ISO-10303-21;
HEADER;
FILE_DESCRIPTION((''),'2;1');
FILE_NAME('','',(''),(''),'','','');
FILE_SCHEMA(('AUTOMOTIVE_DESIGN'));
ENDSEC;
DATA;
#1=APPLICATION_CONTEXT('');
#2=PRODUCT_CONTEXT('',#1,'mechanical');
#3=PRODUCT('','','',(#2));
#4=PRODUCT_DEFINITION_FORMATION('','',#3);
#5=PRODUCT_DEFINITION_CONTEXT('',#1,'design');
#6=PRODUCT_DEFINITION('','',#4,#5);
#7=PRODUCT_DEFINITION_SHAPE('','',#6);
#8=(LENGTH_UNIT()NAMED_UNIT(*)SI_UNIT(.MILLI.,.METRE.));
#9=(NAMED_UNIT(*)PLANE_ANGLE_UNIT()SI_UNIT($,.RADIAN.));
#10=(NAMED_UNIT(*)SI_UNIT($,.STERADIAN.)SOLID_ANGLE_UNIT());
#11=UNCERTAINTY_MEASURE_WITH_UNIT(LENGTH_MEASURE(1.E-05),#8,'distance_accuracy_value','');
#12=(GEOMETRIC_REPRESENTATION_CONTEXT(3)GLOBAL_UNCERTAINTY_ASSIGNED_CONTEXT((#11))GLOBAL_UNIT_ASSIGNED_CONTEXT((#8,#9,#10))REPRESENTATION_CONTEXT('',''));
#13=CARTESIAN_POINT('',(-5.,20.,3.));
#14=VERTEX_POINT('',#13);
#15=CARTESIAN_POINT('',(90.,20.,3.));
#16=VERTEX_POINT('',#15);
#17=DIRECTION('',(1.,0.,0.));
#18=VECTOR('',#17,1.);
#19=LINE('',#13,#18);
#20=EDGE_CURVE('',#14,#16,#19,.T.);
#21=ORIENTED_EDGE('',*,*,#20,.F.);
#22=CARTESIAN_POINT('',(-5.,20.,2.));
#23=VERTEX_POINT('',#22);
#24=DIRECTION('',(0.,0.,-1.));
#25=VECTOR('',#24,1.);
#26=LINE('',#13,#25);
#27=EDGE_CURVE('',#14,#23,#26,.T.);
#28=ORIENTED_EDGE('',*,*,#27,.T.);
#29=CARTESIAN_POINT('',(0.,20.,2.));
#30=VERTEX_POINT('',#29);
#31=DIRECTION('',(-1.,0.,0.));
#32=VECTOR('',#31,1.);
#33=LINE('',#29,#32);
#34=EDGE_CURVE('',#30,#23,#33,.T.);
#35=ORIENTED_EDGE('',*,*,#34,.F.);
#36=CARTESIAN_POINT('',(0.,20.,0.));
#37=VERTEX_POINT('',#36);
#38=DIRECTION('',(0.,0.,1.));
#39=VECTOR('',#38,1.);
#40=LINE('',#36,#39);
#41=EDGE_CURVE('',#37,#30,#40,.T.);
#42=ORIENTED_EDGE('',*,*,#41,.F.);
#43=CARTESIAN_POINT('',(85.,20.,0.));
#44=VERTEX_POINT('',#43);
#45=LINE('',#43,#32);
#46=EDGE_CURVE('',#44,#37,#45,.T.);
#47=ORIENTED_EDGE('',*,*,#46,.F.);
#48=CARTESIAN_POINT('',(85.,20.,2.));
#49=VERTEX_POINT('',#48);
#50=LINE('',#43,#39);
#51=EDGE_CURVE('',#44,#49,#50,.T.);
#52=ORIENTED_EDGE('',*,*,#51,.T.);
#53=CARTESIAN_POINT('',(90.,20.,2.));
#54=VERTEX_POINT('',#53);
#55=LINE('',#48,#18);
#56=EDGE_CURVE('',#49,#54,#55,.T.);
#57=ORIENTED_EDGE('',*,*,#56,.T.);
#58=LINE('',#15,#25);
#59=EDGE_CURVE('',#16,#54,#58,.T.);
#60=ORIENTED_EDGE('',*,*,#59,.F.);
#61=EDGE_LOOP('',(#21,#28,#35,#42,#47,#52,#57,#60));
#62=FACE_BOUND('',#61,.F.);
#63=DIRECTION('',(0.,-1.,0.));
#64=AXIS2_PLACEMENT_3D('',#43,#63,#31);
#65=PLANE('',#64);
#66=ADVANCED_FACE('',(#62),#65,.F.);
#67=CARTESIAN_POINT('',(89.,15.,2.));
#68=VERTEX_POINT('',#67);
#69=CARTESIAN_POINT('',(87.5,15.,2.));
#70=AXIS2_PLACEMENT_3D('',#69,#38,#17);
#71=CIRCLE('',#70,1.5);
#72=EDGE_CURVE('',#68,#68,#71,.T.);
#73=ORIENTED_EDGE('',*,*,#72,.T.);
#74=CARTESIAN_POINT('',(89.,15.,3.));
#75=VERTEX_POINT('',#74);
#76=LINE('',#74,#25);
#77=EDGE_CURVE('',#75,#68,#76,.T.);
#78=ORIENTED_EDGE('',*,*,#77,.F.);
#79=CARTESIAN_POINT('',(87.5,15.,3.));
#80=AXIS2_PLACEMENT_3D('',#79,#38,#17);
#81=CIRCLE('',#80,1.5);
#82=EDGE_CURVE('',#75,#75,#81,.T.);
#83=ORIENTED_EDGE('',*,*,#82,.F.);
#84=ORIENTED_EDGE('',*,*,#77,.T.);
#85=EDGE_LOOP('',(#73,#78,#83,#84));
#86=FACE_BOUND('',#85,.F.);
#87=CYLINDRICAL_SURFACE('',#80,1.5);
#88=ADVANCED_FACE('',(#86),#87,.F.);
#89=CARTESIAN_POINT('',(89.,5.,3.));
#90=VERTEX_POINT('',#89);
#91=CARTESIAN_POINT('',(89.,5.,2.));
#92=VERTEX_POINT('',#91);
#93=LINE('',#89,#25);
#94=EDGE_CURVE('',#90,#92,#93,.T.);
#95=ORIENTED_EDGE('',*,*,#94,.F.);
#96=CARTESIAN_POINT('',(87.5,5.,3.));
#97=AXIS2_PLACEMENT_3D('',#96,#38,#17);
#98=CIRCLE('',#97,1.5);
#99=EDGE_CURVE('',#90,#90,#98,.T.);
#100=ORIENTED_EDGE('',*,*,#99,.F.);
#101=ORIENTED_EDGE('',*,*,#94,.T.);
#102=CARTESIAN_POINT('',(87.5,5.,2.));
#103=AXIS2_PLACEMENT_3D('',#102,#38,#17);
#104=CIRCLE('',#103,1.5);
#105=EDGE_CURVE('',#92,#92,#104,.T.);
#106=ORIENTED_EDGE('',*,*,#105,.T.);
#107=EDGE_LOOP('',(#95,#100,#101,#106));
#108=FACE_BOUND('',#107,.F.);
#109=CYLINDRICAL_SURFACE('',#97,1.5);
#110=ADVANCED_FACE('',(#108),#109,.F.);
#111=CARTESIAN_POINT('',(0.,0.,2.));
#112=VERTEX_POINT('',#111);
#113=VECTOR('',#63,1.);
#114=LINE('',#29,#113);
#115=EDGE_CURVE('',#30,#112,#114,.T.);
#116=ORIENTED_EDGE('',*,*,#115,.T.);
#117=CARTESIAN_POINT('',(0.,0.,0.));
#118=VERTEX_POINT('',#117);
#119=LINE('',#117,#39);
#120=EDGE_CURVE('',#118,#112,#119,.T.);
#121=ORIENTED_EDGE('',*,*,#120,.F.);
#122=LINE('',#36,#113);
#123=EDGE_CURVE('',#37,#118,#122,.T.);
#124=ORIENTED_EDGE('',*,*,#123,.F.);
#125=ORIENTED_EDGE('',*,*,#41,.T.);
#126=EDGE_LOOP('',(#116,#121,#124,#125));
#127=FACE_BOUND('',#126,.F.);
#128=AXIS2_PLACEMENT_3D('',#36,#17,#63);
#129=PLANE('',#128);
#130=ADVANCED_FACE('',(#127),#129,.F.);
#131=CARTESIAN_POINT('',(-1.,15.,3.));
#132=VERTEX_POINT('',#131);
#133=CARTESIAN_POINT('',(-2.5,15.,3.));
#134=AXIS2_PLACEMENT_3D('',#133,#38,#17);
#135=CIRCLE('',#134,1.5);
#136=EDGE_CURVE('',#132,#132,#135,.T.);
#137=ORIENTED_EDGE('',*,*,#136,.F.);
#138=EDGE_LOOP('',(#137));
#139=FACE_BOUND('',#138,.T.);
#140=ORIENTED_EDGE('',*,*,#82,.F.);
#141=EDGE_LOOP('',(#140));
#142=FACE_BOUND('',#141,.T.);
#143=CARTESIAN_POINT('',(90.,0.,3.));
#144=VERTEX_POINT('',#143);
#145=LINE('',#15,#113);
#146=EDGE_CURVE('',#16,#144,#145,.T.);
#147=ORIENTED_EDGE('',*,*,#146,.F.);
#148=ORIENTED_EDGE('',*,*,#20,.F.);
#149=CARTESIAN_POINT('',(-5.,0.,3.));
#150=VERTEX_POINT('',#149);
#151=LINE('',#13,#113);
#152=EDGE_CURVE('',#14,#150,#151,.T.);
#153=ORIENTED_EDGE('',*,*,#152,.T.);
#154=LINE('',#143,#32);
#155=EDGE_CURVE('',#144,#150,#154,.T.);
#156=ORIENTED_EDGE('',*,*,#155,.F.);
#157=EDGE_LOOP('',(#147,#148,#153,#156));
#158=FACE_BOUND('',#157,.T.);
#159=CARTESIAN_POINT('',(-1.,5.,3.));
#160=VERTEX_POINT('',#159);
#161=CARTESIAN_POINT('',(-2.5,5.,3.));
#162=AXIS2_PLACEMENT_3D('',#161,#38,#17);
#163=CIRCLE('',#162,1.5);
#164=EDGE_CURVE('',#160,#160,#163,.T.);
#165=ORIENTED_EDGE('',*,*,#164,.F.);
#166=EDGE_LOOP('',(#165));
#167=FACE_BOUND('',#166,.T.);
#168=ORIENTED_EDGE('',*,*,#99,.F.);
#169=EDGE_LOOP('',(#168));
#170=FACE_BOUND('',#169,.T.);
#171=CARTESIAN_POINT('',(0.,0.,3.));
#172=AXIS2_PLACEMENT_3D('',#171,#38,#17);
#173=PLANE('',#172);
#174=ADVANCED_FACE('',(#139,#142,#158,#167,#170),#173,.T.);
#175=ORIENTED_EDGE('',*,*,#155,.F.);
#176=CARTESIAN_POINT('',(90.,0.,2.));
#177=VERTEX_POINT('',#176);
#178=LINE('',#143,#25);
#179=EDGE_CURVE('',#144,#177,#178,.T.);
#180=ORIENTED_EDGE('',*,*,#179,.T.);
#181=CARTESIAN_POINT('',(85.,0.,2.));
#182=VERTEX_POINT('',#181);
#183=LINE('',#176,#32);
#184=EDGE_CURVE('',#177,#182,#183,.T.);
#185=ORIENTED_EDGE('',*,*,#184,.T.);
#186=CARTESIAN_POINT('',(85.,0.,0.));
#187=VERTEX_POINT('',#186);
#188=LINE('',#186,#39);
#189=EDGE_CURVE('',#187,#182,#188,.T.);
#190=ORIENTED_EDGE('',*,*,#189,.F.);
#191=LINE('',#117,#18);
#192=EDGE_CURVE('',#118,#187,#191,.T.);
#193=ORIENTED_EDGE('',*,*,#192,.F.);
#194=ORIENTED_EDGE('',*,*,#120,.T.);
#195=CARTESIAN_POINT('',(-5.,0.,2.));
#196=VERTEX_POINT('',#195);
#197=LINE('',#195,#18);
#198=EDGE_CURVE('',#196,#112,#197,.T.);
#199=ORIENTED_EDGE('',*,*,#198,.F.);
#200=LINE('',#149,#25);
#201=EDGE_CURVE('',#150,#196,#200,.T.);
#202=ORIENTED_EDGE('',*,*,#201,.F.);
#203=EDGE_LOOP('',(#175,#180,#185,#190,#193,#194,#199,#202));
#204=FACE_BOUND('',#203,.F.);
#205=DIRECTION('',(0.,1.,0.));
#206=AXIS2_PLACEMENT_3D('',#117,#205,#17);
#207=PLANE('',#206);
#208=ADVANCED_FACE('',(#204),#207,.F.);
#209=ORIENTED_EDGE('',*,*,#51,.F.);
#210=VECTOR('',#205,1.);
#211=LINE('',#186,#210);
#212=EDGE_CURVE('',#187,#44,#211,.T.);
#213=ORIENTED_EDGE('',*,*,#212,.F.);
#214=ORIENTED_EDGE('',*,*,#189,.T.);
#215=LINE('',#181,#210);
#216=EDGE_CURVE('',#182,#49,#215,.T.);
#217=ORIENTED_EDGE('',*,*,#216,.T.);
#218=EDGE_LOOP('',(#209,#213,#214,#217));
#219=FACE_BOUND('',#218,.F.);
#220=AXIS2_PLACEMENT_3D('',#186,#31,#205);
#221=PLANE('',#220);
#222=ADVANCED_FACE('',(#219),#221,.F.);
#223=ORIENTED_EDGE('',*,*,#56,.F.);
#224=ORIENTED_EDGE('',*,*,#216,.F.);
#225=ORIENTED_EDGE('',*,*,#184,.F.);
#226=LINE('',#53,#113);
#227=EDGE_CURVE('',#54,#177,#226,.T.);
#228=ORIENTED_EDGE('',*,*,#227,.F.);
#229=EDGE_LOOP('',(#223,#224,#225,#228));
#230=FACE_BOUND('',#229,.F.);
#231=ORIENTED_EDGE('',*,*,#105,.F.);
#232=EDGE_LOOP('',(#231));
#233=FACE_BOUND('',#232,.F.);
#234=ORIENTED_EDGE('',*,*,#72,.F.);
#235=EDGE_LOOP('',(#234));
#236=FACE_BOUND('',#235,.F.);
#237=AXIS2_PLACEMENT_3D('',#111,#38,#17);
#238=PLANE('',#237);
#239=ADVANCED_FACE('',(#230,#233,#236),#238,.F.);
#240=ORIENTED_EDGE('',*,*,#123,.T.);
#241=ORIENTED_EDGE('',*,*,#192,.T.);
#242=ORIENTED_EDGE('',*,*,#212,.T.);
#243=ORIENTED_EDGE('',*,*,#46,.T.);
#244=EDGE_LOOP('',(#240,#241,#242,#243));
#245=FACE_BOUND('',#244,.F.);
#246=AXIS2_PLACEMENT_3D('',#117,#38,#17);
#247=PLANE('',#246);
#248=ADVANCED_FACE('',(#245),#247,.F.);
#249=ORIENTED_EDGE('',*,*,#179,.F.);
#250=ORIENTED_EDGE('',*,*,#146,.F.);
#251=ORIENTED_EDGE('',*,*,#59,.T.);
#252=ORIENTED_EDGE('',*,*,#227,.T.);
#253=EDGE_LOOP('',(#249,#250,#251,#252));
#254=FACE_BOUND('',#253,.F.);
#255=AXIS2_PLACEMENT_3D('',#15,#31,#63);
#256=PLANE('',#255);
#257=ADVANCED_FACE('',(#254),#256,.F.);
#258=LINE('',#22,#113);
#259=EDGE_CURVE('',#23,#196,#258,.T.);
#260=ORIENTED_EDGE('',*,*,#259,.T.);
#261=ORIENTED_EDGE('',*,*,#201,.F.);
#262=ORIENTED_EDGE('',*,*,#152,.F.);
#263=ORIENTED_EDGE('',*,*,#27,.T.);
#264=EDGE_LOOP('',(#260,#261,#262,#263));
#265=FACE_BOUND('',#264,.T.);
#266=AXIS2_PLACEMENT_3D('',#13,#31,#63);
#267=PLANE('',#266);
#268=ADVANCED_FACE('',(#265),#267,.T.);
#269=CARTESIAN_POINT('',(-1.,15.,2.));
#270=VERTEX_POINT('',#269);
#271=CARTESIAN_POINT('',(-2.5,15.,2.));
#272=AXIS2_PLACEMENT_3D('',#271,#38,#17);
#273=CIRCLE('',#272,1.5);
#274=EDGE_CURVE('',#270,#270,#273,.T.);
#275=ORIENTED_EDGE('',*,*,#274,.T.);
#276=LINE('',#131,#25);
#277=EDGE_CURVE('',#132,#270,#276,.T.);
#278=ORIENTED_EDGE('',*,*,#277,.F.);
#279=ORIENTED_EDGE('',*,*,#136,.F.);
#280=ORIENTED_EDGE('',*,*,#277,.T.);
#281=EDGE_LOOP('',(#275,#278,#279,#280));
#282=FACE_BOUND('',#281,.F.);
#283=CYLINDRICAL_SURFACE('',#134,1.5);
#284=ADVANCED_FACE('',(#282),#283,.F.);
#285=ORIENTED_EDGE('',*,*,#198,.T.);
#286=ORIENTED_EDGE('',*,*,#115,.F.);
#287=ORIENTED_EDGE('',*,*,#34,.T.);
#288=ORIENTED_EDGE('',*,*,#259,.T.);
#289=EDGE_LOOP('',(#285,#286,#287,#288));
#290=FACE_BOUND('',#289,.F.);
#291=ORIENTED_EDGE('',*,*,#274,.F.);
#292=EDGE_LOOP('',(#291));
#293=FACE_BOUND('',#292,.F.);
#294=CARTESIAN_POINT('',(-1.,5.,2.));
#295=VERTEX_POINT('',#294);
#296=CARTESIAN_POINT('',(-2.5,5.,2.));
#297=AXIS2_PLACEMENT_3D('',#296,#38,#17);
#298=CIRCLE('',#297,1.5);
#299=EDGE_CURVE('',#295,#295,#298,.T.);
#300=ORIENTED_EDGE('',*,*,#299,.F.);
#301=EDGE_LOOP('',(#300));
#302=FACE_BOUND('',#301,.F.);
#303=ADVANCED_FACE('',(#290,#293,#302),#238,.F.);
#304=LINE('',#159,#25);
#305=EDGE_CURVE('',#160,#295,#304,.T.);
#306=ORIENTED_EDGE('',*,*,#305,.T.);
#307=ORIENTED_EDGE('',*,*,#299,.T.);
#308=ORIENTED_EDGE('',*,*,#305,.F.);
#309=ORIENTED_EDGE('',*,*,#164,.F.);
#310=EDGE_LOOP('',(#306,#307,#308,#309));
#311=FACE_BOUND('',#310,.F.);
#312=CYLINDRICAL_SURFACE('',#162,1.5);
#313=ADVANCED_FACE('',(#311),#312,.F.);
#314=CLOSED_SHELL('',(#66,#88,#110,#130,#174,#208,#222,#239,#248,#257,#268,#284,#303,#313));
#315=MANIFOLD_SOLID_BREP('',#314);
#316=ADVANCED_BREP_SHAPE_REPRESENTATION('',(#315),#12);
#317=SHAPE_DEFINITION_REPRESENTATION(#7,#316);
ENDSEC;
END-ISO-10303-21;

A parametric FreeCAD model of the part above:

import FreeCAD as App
import Part
import Sketcher

doc = App.newDocument("Part")
body = doc.addObject("PartDesign::Body", "Body")

# Sketch on XY plane
sketch1 = body.newObject("Sketcher::SketchObject", "Sketch")
sketch1.AttachmentSupport = (doc.getObject("XY_Plane"), [""])
sketch1.MapMode = "FlatFace"
sketch1.addGeometry([
    Part.LineSegment(App.Vector(0, 20, 0), App.Vector(0, 0, 0)),
    Part.LineSegment(App.Vector(0, 0, 0), App.Vector(85, 0, 0)),
    Part.LineSegment(App.Vector(85, 0, 0), App.Vector(85, 20, 0)),
    Part.LineSegment(App.Vector(85, 20, 0), App.Vector(0, 20, 0)),
], False)
sketch1.addConstraint([
    Sketcher.Constraint("Coincident", 0, 2, 1, 1),
    Sketcher.Constraint("Coincident", 1, 2, 2, 1),
    Sketcher.Constraint("Coincident", 2, 2, 3, 1),
    Sketcher.Constraint("Coincident", 3, 2, 0, 1),
    Sketcher.Constraint("Vertical", 0),
    Sketcher.Constraint("Horizontal", 1),
    Sketcher.Constraint("Vertical", 2),
    Sketcher.Constraint("Horizontal", 3),
    Sketcher.Constraint("Coincident", 0, 2, -1, 1),
    Sketcher.Constraint("DistanceX", 1, 1, 1, 2, 85.0),
    Sketcher.Constraint("DistanceY", 0, 2, 0, 1, 20.0),
])
pad1 = body.newObject("PartDesign::Pad", "Pad")
pad1.Profile = sketch1
pad1.Length = 3

# Sketch on XY plane
sketch2 = body.newObject("Sketcher::SketchObject", "Sketch001")
sketch2.AttachmentSupport = (doc.getObject("XY_Plane"), [""])
sketch2.MapMode = "FlatFace"
sketch2.AttachmentOffset = App.Placement(App.Vector(0, 0, 3), App.Rotation())
sketch2.addGeometry([
    Part.LineSegment(App.Vector(0, 0, 0), App.Vector(0, 20, 0)),  # 0
    Part.LineSegment(App.Vector(0, 20, 0), App.Vector(-5, 20, 0)),  # 1
    Part.LineSegment(App.Vector(-5, 20, 0), App.Vector(-5, 0, 0)),  # 2
    Part.LineSegment(App.Vector(-5, 0, 0), App.Vector(0, 0, 0)),  # 3
    Part.Circle(App.Vector(-2.5, 5, 0), App.Vector(0, 0, 1), 1.5),  # 4
    Part.Circle(App.Vector(-2.5, 15, 0), App.Vector(0, 0, 1), 1.5),  # 5
    Part.LineSegment(App.Vector(85, 20, 0), App.Vector(85, 0, 0)),  # 6
    Part.LineSegment(App.Vector(85, 0, 0), App.Vector(90, 0, 0)),  # 7
    Part.LineSegment(App.Vector(90, 0, 0), App.Vector(90, 20, 0)),  # 8
    Part.LineSegment(App.Vector(90, 20, 0), App.Vector(85, 20, 0)),  # 9
    Part.Circle(App.Vector(87.5, 5, 0), App.Vector(0, 0, 1), 1.5),  # 10
    Part.Circle(App.Vector(87.5, 15, 0), App.Vector(0, 0, 1), 1.5),  # 11
], False)
sketch2.addConstraint([
    Sketcher.Constraint("Coincident", 0, 2, 1, 1),
    Sketcher.Constraint("Coincident", 1, 2, 2, 1),
    Sketcher.Constraint("Coincident", 2, 2, 3, 1),
    Sketcher.Constraint("Coincident", 3, 2, 0, 1),
    Sketcher.Constraint("Coincident", 6, 2, 7, 1),
    Sketcher.Constraint("Coincident", 7, 2, 8, 1),
    Sketcher.Constraint("Coincident", 8, 2, 9, 1),
    Sketcher.Constraint("Coincident", 9, 2, 6, 1),
    Sketcher.Constraint("Vertical", 0),
    Sketcher.Constraint("Horizontal", 1),
    Sketcher.Constraint("Vertical", 2),
    Sketcher.Constraint("Horizontal", 3),
    Sketcher.Constraint("Vertical", 6),
    Sketcher.Constraint("Horizontal", 7),
    Sketcher.Constraint("Vertical", 8),
    Sketcher.Constraint("Horizontal", 9),
    Sketcher.Constraint("Coincident", 3, 2, -1, 1),
    Sketcher.Constraint("Equal", 4, 5),
    Sketcher.Constraint("Equal", 5, 10),
    Sketcher.Constraint("Equal", 10, 11),
    Sketcher.Constraint("PointOnObject", 6, 2, -1),
    Sketcher.Constraint("Horizontal", 4, 3, 10, 3),
    Sketcher.Constraint("Horizontal", 5, 3, 11, 3),
    Sketcher.Constraint("Horizontal", 1, 2, 8, 2),
    Sketcher.Constraint("Vertical", 4, 3, 5, 3),
    Sketcher.Constraint("Vertical", 10, 3, 11, 3),
    Sketcher.Constraint("Equal", 3, 7),
    Sketcher.Constraint("Diameter", 4, 3.0),
    Sketcher.Constraint("DistanceX", 1, 2, 1, 1, 5.0),
    Sketcher.Constraint("DistanceY", -1, 1, 4, 3, 5.0),
    Sketcher.Constraint("DistanceY", 5, 3, 0, 2, 5.0),
    Sketcher.Constraint("DistanceY", 0, 1, 0, 2, 20.0),
    Sketcher.Constraint("DistanceX", -1, 1, 6, 2, 85.0),
    Sketcher.Constraint("DistanceX", 4, 3, 10, 3, 90.0),
    Sketcher.Constraint("DistanceX", 4, 3, -1, 1, 2.5),
])
pad2 = body.newObject("PartDesign::Pad", "Pad001")
pad2.Profile = sketch2
pad2.Length = 1
pad2.Reversed = True

doc.recompute()
